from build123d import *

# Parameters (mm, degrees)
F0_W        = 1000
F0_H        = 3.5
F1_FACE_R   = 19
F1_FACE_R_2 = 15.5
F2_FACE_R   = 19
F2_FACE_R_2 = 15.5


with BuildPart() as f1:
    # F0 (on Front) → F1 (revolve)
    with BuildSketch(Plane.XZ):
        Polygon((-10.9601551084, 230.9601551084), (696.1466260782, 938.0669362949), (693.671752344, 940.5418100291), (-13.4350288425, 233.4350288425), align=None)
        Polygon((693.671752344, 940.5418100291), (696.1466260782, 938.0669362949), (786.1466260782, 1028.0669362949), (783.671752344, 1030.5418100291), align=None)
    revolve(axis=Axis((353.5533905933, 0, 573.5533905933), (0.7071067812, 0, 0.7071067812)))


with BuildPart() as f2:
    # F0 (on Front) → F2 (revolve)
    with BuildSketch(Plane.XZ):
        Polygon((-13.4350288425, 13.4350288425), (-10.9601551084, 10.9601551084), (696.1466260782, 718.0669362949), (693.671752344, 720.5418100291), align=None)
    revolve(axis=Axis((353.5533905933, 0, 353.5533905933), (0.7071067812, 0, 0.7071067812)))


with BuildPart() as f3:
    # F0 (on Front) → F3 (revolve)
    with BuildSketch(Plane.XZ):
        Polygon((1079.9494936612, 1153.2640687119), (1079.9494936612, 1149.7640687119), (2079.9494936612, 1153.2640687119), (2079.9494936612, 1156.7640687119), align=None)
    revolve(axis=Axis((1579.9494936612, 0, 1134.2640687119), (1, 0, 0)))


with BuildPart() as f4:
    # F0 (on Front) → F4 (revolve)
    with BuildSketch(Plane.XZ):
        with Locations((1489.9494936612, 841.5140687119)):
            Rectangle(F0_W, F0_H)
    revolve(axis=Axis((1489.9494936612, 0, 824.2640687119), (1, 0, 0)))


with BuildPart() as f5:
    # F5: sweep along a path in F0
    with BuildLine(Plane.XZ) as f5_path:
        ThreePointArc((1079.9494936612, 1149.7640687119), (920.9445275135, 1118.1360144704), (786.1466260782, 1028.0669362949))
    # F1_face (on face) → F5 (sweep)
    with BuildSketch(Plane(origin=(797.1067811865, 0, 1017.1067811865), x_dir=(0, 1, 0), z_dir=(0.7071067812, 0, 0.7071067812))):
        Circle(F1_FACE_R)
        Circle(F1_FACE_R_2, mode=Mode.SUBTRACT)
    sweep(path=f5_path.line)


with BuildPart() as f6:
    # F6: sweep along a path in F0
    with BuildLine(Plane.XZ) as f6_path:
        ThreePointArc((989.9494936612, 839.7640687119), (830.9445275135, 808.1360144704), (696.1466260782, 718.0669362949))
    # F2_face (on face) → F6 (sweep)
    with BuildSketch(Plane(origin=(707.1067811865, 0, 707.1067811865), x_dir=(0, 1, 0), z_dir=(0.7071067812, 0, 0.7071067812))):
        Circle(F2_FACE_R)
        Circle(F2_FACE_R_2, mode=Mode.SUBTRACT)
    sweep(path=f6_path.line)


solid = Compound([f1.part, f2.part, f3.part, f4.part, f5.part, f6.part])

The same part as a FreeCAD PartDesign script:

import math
import FreeCAD as App
import Part
import Sketcher
from FreeCAD import Vector
Q = App.Units.Quantity

doc = App.newDocument("Part")
body = doc.addObject("PartDesign::Body", "Body")

# Sketch on XZ plane
sketch1 = body.newObject("Sketcher::SketchObject", "Sketch")
sketch1.AttachmentSupport = (doc.getObject("XZ_Plane"), [""])
sketch1.MapMode = "FlatFace"
sketch1.addGeometry([
    Part.LineSegment(Vector(-10.960155, 230.960155, 0), Vector(786.146626, 1028.066936, 0)),
    Part.LineSegment(Vector(786.146626, 1028.066936, 0), Vector(783.671752, 1030.54181, 0)),
    Part.LineSegment(Vector(783.671752, 1030.54181, 0), Vector(-13.435029, 233.435029, 0)),
    Part.LineSegment(Vector(-13.435029, 233.435029, 0), Vector(-10.960155, 230.960155, 0)),
], False)
sketch1.addGeometry(Part.LineSegment(Vector(0, 220, 0), Vector(797.106781, 1017.106781, 0)), True)  # axis
sketch1.addConstraint([
    Sketcher.Constraint("Coincident", 0, 2, 1, 1),
    Sketcher.Constraint("Coincident", 1, 2, 2, 1),
    Sketcher.Constraint("Coincident", 2, 2, 3, 1),
    Sketcher.Constraint("Coincident", 3, 2, 0, 1),
    Sketcher.Constraint("PointOnObject", 4, 1, -2),
    Sketcher.Constraint("Perpendicular", 0, 1),
    Sketcher.Constraint("Perpendicular", 1, 2),
    Sketcher.Constraint("Perpendicular", 2, 3),
    Sketcher.Constraint("Perpendicular", 3, 4),
    Sketcher.Constraint("Equal", 2, 4),
    Sketcher.Constraint("Angle", 0, Q("45 deg")),
    Sketcher.Constraint("DistanceY", -1, 1, 4, 1, 220.0),
    Sketcher.Constraint("Distance", 1, 3.5),
    Sketcher.Constraint("Distance", 0, 1127.279221),
    Sketcher.Constraint("DistanceY", -1, 1, 1, 2, 1030.54181),
    Sketcher.Constraint("DistanceX", 2, 2, -1, 1, 13.435029),
])
revolution = body.newObject("PartDesign::Revolution", "Revolution")
revolution.Profile = sketch1
revolution.ReferenceAxis = (sketch1, ["Axis0"])
revolution.Angle = 360
body2 = doc.addObject("PartDesign::Body", "Body001")

# Sketch on XZ plane
sketch2 = body2.newObject("Sketcher::SketchObject", "Sketch001")
sketch2.AttachmentSupport = (doc.getObject("XZ_Plane001"), [""])
sketch2.MapMode = "FlatFace"
sketch2.addGeometry([
    Part.LineSegment(Vector(-13.435029, 13.435029, 0), Vector(-10.960155, 10.960155, 0)),
    Part.LineSegment(Vector(-10.960155, 10.960155, 0), Vector(696.146626, 718.066936, 0)),
    Part.LineSegment(Vector(696.146626, 718.066936, 0), Vector(693.671752, 720.54181, 0)),
    Part.LineSegment(Vector(693.671752, 720.54181, 0), Vector(-13.435029, 13.435029, 0)),
], False)
sketch2.addGeometry(Part.LineSegment(Vector(0, 0, 0), Vector(707.106781, 707.106781, 0)), True)  # axis
sketch2.addConstraint([
    Sketcher.Constraint("Coincident", 0, 2, 1, 1),
    Sketcher.Constraint("Coincident", 1, 2, 2, 1),
    Sketcher.Constraint("Coincident", 2, 2, 3, 1),
    Sketcher.Constraint("Coincident", 3, 2, 0, 1),
    Sketcher.Constraint("Coincident", 4, 1, -1, 1),
    Sketcher.Constraint("Perpendicular", 0, 1),
    Sketcher.Constraint("Perpendicular", 1, 2),
    Sketcher.Constraint("Perpendicular", 2, 3),
    Sketcher.Constraint("Parallel", 3, 4),
    Sketcher.Constraint("Equal", 3, 4),
    Sketcher.Constraint("Angle", 1, Q("45 deg")),
    Sketcher.Constraint("Distance", 1, 1000.0),
    Sketcher.Constraint("Distance", 0, 3.5),
    Sketcher.Constraint("DistanceY", -1, 1, 2, 2, 720.54181),
    Sketcher.Constraint("DistanceX", 3, 2, -1, 1, 13.435029),
])
revolution2 = body2.newObject("PartDesign::Revolution", "Revolution001")
revolution2.Profile = sketch2
revolution2.ReferenceAxis = (sketch2, ["Axis0"])
revolution2.Angle = 360
body3 = doc.addObject("PartDesign::Body", "Body002")

# Sketch on XZ plane
sketch3 = body3.newObject("Sketcher::SketchObject", "Sketch002")
sketch3.AttachmentSupport = (doc.getObject("XZ_Plane002"), [""])
sketch3.MapMode = "FlatFace"
sketch3.addGeometry([
    Part.LineSegment(Vector(1079.949494, 1153.264069, 0), Vector(1079.949494, 1149.764069, 0)),
    Part.LineSegment(Vector(1079.949494, 1149.764069, 0), Vector(2079.949494, 1153.264069, 0)),
    Part.LineSegment(Vector(2079.949494, 1153.264069, 0), Vector(2079.949494, 1156.764069, 0)),
    Part.LineSegment(Vector(2079.949494, 1156.764069, 0), Vector(1079.949494, 1153.264069, 0)),
], False)
sketch3.addGeometry(Part.LineSegment(Vector(1079.949494, 1134.264069, 0), Vector(2079.949494, 1134.264069, 0)), True)  # axis
sketch3.addConstraint([
    Sketcher.Constraint("Coincident", 0, 2, 1, 1),
    Sketcher.Constraint("Coincident", 1, 2, 2, 1),
    Sketcher.Constraint("Coincident", 2, 2, 3, 1),
    Sketcher.Constraint("Coincident", 3, 2, 0, 1),
    Sketcher.Constraint("Vertical", 0),
    Sketcher.Constraint("Vertical", 2),
    Sketcher.Constraint("Horizontal", 4),
    Sketcher.Constraint("Parallel", 1, 3),
    Sketcher.Constraint("Horizontal", 1, 2, 3, 2),
    Sketcher.Constraint("Vertical", 3, 2, 4, 1),
    Sketcher.Constraint("Vertical", 2, 2, 4, 2),
    Sketcher.Constraint("DistanceX", 4, 1, 4, 2, 1000.0),
    Sketcher.Constraint("DistanceY", 0, 2, 0, 1, 3.5),
    Sketcher.Constraint("DistanceY", 4, 1, 3, 2, 19.0),
    Sketcher.Constraint("DistanceY", -1, 1, 0, 2, 1149.764069),
    Sketcher.Constraint("DistanceX", -1, 1, 0, 2, 1079.949494),
])
revolution3 = body3.newObject("PartDesign::Revolution", "Revolution002")
revolution3.Profile = sketch3
revolution3.ReferenceAxis = (sketch3, ["Axis0"])
revolution3.Angle = 360
body4 = doc.addObject("PartDesign::Body", "Body003")

# Sketch on XZ plane
sketch4 = body4.newObject("Sketcher::SketchObject", "Sketch003")
sketch4.AttachmentSupport = (doc.getObject("XZ_Plane003"), [""])
sketch4.MapMode = "FlatFace"
sketch4.addGeometry([
    Part.LineSegment(Vector(989.949494, 843.264069, 0), Vector(989.949494, 839.764069, 0)),
    Part.LineSegment(Vector(989.949494, 839.764069, 0), Vector(1989.949494, 839.764069, 0)),
    Part.LineSegment(Vector(1989.949494, 839.764069, 0), Vector(1989.949494, 843.264069, 0)),
    Part.LineSegment(Vector(1989.949494, 843.264069, 0), Vector(989.949494, 843.264069, 0)),
], False)
sketch4.addGeometry(Part.LineSegment(Vector(989.949494, 824.264069, 0), Vector(1989.949494, 824.264069, 0)), True)  # axis
sketch4.addConstraint([
    Sketcher.Constraint("Coincident", 0, 2, 1, 1),
    Sketcher.Constraint("Coincident", 1, 2, 2, 1),
    Sketcher.Constraint("Coincident", 2, 2, 3, 1),
    Sketcher.Constraint("Coincident", 3, 2, 0, 1),
    Sketcher.Constraint("Vertical", 0),
    Sketcher.Constraint("Horizontal", 1),
    Sketcher.Constraint("Vertical", 2),
    Sketcher.Constraint("Horizontal", 3),
    Sketcher.Constraint("Horizontal", 4),
    Sketcher.Constraint("Vertical", 3, 2, 4, 1),
    Sketcher.Constraint("Vertical", 2, 2, 4, 2),
    Sketcher.Constraint("DistanceX", 1, 1, 1, 2, 1000.0),
    Sketcher.Constraint("DistanceY", 0, 2, 0, 1, 3.5),
    Sketcher.Constraint("DistanceY", 4, 1, 3, 2, 19.0),
    Sketcher.Constraint("DistanceY", -1, 1, 0, 2, 839.764069),
    Sketcher.Constraint("DistanceX", -1, 1, 0, 2, 989.949494),
])
revolution4 = body4.newObject("PartDesign::Revolution", "Revolution003")
revolution4.Profile = sketch4
revolution4.ReferenceAxis = (sketch4, ["Axis0"])
revolution4.Angle = 360
body5 = doc.addObject("PartDesign::Body", "Body004")

# Sketch on an angled plane
sketch5 = body5.newObject("Sketcher::SketchObject", "Sketch004")
sketch5.Placement = App.Placement(Vector(797.106781, 0, 1017.106781), App.Rotation(Vector(0, 1, 0), Vector(-0.707106781, 0, 0.707106781), Vector(0.707106781, 0, 0.707106781), "ZXY"))
sketch5.addGeometry([
    Part.Circle(Vector(0, 0, 0), Vector(0, 0, 1), 19),
    Part.Circle(Vector(0, 0, 0), Vector(0, 0, 1), 15.5),
], False)
sketch5.addConstraint([
    Sketcher.Constraint("Coincident", 0, 3, -1, 1),
    Sketcher.Constraint("Coincident", 1, 3, -1, 1),
    Sketcher.Constraint("Diameter", 0, 38.0),
    Sketcher.Constraint("Diameter", 1, 31.0),
])

# Sketch on XZ plane
sketch6 = body5.newObject("Sketcher::SketchObject", "Sketch005")
sketch6.AttachmentSupport = (doc.getObject("XZ_Plane004"), [""])
sketch6.MapMode = "FlatFace"
sketch6.addGeometry(Part.ArcOfCircle(Part.Circle(Vector(1079.949494, 734.264069, 0), Vector(0, 0, 1), 415.5), math.radians(90), math.radians(135)), False)
sketch6.addConstraint([
    Sketcher.Constraint("Radius", 0, 415.5),
    Sketcher.Constraint("DistanceY", -1, 1, 0, 3, 734.264069),
    Sketcher.Constraint("DistanceX", -1, 1, 0, 3, 1079.949494),
    Sketcher.Constraint("DistanceX", -1, 1, 0, 1, 1079.949494),
    Sketcher.Constraint("DistanceX", -1, 1, 0, 2, 786.146626),
])
doc.recompute()

additivepipe = body5.newObject("PartDesign::AdditivePipe", "AdditivePipe")
additivepipe.Profile = sketch5
additivepipe.Spine = (sketch6, ["Edge1"])
body6 = doc.addObject("PartDesign::Body", "Body005")

# Sketch on an angled plane
sketch7 = body6.newObject("Sketcher::SketchObject", "Sketch006")
sketch7.Placement = App.Placement(Vector(707.106781, 0, 707.106781), App.Rotation(Vector(0, 1, 0), Vector(-0.707106781, 0, 0.707106781), Vector(0.707106781, 0, 0.707106781), "ZXY"))
sketch7.addGeometry([
    Part.Circle(Vector(0, 0, 0), Vector(0, 0, 1), 19),
    Part.Circle(Vector(0, 0, 0), Vector(0, 0, 1), 15.5),
], False)
sketch7.addConstraint([
    Sketcher.Constraint("Coincident", 0, 3, -1, 1),
    Sketcher.Constraint("Coincident", 1, 3, -1, 1),
    Sketcher.Constraint("Diameter", 0, 38.0),
    Sketcher.Constraint("Diameter", 1, 31.0),
])

# Sketch on XZ plane
sketch8 = body6.newObject("Sketcher::SketchObject", "Sketch007")
sketch8.AttachmentSupport = (doc.getObject("XZ_Plane005"), [""])
sketch8.MapMode = "FlatFace"
sketch8.addGeometry(Part.ArcOfCircle(Part.Circle(Vector(989.949494, 424.264069, 0), Vector(0, 0, 1), 415.5), math.radians(90), math.radians(135)), False)
sketch8.addConstraint([
    Sketcher.Constraint("Radius", 0, 415.5),
    Sketcher.Constraint("DistanceY", -1, 1, 0, 3, 424.264069),
    Sketcher.Constraint("DistanceX", -1, 1, 0, 3, 989.949494),
    Sketcher.Constraint("DistanceX", -1, 1, 0, 1, 989.949494),
    Sketcher.Constraint("DistanceX", -1, 1, 0, 2, 696.146626),
])
doc.recompute()

additivepipe2 = body6.newObject("PartDesign::AdditivePipe", "AdditivePipe001")
additivepipe2.Profile = sketch7
additivepipe2.Spine = (sketch8, ["Edge1"])

doc.recompute()
